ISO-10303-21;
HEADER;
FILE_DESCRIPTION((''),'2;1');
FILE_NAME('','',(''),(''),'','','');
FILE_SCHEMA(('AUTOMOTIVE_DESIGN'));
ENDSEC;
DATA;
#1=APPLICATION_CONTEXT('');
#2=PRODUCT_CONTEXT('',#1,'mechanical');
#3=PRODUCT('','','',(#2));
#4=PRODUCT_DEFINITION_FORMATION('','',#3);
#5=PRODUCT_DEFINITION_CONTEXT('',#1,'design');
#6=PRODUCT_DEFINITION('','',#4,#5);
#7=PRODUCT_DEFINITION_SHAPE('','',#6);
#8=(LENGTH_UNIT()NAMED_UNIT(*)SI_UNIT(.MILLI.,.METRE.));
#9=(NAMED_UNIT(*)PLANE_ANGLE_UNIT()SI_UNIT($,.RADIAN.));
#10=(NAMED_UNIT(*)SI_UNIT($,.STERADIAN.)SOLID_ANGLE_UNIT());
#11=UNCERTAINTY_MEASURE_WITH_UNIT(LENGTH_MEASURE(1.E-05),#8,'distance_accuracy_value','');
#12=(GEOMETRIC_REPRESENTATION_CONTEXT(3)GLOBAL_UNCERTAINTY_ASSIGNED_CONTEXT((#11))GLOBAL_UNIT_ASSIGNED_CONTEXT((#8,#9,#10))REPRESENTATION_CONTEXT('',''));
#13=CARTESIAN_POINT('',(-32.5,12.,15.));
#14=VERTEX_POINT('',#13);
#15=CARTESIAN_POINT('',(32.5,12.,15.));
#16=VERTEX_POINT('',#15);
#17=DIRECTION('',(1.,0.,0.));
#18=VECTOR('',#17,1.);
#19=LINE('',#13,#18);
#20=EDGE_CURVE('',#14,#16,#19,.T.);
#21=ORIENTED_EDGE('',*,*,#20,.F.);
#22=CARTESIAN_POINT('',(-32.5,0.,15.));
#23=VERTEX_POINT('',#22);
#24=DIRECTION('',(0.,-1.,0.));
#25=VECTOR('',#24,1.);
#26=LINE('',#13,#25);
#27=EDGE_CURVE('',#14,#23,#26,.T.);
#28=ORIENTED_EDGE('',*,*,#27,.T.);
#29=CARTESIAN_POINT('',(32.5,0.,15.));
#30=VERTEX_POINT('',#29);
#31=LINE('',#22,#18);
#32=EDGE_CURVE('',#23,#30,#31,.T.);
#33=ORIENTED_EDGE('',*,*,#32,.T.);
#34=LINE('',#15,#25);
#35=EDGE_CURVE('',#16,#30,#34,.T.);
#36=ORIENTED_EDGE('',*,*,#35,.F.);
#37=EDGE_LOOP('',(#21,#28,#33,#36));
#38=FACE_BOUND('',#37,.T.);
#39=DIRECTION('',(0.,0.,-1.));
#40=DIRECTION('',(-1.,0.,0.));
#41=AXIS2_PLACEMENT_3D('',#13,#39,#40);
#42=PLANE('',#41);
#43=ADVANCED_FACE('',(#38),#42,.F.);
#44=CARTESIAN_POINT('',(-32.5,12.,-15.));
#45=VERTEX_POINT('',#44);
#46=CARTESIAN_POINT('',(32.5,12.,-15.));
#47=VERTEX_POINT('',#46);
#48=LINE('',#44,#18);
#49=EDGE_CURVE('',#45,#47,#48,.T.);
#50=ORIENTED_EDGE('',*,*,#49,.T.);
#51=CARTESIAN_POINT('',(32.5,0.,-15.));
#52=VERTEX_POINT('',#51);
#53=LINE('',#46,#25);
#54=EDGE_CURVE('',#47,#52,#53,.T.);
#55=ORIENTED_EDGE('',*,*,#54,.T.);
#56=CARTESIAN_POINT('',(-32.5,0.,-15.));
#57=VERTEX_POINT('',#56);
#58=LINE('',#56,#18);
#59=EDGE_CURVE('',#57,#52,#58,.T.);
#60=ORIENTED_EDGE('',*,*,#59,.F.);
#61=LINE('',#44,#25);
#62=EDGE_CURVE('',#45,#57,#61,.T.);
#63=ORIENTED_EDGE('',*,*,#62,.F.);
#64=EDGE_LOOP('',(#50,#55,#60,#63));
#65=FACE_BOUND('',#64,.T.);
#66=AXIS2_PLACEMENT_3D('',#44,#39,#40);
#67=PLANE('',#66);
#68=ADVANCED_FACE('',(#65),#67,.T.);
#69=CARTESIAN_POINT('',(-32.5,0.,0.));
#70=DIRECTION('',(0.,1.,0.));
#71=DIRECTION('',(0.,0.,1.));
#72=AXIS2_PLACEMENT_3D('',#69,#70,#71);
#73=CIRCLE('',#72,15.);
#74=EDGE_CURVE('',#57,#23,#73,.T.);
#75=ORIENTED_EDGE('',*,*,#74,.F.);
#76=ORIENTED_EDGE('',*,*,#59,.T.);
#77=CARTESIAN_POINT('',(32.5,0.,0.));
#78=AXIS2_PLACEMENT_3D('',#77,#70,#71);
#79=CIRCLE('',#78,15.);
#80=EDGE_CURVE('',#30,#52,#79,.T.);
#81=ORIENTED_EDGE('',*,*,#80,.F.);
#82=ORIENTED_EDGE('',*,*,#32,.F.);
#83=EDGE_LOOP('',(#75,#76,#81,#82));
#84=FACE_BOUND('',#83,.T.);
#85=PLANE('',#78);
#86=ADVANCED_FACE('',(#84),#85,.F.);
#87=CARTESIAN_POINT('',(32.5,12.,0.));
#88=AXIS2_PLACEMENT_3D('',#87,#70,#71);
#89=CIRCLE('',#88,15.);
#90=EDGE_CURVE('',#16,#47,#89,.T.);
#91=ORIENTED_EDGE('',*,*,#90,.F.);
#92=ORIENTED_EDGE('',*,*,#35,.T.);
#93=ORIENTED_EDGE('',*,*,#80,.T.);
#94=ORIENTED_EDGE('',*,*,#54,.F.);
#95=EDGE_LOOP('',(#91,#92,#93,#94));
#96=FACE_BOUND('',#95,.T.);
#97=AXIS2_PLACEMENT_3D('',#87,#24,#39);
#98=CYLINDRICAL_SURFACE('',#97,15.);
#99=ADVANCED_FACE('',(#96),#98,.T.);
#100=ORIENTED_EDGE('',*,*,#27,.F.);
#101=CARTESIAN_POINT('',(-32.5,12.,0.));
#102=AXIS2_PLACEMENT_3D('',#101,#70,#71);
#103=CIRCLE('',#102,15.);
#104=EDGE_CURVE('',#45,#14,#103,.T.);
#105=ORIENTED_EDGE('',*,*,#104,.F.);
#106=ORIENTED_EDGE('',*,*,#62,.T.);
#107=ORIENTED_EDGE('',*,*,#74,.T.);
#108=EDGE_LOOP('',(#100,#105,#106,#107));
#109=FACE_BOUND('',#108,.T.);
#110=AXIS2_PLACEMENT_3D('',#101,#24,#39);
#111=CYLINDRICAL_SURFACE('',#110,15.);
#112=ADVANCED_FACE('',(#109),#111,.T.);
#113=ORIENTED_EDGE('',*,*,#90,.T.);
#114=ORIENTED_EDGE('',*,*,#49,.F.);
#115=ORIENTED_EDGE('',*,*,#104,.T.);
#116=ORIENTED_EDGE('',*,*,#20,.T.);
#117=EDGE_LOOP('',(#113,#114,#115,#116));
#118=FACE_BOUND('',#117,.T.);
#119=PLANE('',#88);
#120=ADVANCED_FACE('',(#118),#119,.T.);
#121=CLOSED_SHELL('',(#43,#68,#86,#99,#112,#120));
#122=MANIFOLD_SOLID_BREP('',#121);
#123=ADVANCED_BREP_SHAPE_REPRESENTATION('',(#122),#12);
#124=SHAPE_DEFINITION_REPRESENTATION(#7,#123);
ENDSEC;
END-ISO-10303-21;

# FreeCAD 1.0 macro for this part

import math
import FreeCAD as App
import Part
import Sketcher
from FreeCAD import Vector

doc = App.newDocument("Part")
params = doc.addObject("Spreadsheet::Sheet", "Params")
for row, (alias, value) in enumerate([
    ("sketch1_radius", "15 mm"),
    ("sketch1_width", "65 mm"),
    ("pad1_length", "12 mm"),
], start=1):
    params.set(f"A{row}", alias)
    params.set(f"B{row}", "=" + value)
    params.setAlias(f"B{row}", alias)

body = doc.addObject("PartDesign::Body", "Body")

# Sketch on XZ plane
sketch1 = doc.addObject("Sketcher::SketchObject", "Sketch")
body.addObject(sketch1)
sketch1.AttachmentSupport = (doc.XZ_Plane, [""])
sketch1.MapMode = "FlatFace"
sketch1.addGeometry(Part.LineSegment(Vector(32.5, -15, 0), Vector(-32.5, -15, 0)), False)
sketch1.addGeometry(Part.ArcOfCircle(Part.Circle(Vector(-32.5, 0, 0), Vector(0, 0, 1), 15), math.radians(90), math.radians(270)), False)
sketch1.addGeometry(Part.LineSegment(Vector(-32.5, 15, 0), Vector(32.5, 15, 0)), False)
sketch1.addGeometry(Part.ArcOfCircle(Part.Circle(Vector(32.5, 0, 0), Vector(0, 0, 1), 15), math.radians(-90), math.radians(90)), False)
sketch1.addConstraint(Sketcher.Constraint("Tangent", 0, 2, 1, 2))
sketch1.addConstraint(Sketcher.Constraint("Tangent", 1, 1, 2, 1))
sketch1.addConstraint(Sketcher.Constraint("Tangent", 2, 2, 3, 2))
sketch1.addConstraint(Sketcher.Constraint("Tangent", 3, 1, 0, 1))
sketch1.addConstraint(Sketcher.Constraint("Horizontal", 0))
sketch1.addConstraint(Sketcher.Constraint("Horizontal", 2))
sketch1.addConstraint(Sketcher.Constraint("Symmetric", 1, 3, 3, 3, -1, 1))
sketch1.addConstraint(Sketcher.Constraint("Radius", 1, 15.0))
sketch1.addConstraint(Sketcher.Constraint("DistanceX", 0, 2, 0, 1, 65.0))
sketch1.setExpression("Constraints[7]", "Params.sketch1_radius")
sketch1.setExpression("Constraints[8]", "Params.sketch1_width")
pad1 = doc.addObject("PartDesign::Pad", "Pad")
body.addObject(pad1)
pad1.Profile = sketch1
pad1.setExpression("Length", "Params.pad1_length")
pad1.Reversed = True

doc.recompute()
